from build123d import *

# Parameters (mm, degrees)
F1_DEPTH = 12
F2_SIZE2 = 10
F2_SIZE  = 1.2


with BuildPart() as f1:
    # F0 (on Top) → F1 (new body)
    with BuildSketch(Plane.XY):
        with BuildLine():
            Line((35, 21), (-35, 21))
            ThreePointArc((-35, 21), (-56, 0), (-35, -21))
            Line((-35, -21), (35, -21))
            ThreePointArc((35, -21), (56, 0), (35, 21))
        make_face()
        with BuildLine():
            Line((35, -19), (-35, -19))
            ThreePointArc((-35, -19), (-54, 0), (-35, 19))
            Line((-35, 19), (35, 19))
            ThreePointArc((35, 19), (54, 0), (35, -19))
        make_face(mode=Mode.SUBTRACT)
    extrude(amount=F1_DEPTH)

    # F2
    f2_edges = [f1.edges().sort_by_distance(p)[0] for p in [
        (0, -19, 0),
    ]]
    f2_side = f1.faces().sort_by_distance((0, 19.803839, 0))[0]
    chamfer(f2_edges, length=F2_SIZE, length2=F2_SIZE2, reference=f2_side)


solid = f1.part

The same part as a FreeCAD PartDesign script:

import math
import FreeCAD as App
import Part
import Sketcher

V = App.Vector


def edges_at(feature, points):
    """Names of the edges that pass closest to the given points."""
    edges = feature.Shape.Edges
    near = lambda p: min(range(len(edges)), key=lambda i: edges[i].distToShape(Part.Vertex(*p))[0])
    return sorted({f"Edge{near(p) + 1}" for p in points})

doc = App.newDocument("Part")
params = doc.addObject("Spreadsheet::Sheet", "Params")
for row, (alias, value) in enumerate([
    ("sketch1_radius", "21 mm"),
    ("sketch1_radius2", "19 mm"),
    ("sketch1_width", "70 mm"),
    ("pad1_length", "12 mm"),
    ("chamfer_size", "1.2 mm"),
    ("chamfer_size2", "10 mm"),
], start=1):
    params.set(f"A{row}", alias)
    params.set(f"B{row}", "=" + value)
    params.setAlias(f"B{row}", alias)

body = doc.addObject("PartDesign::Body", "Body")

# Sketch on XY plane
sketch1 = body.newObject("Sketcher::SketchObject", "Sketch")
sketch1.AttachmentSupport = (doc.getObject("XY_Plane"), [""])
sketch1.MapMode = "FlatFace"
sketch1.addGeometry(Part.LineSegment(V(35, 21, 0), V(-35, 21, 0)), False)
sketch1.addGeometry(Part.ArcOfCircle(Part.Circle(V(-35, 0, 0), V(0, 0, 1), 21), math.radians(90), math.radians(270)), False)
sketch1.addGeometry(Part.LineSegment(V(-35, -21, 0), V(35, -21, 0)), False)
sketch1.addGeometry(Part.ArcOfCircle(Part.Circle(V(35, 0, 0), V(0, 0, 1), 21), math.radians(-90), math.radians(90)), False)
sketch1.addGeometry(Part.ArcOfCircle(Part.Circle(V(35, 0, 0), V(0, 0, 1), 19), math.radians(-90), math.radians(90)), False)
sketch1.addGeometry(Part.LineSegment(V(35, -19, 0), V(-35, -19, 0)), False)
sketch1.addGeometry(Part.ArcOfCircle(Part.Circle(V(-35, 0, 0), V(0, 0, 1), 19), math.radians(90), math.radians(270)), False)
sketch1.addGeometry(Part.LineSegment(V(-35, 19, 0), V(35, 19, 0)), False)
sketch1.addConstraint(Sketcher.Constraint("Tangent", 0, 2, 1, 1))
sketch1.addConstraint(Sketcher.Constraint("Tangent", 1, 2, 2, 1))
sketch1.addConstraint(Sketcher.Constraint("Tangent", 2, 2, 3, 1))
sketch1.addConstraint(Sketcher.Constraint("Tangent", 3, 2, 0, 1))
sketch1.addConstraint(Sketcher.Constraint("Tangent", 4, 1, 5, 1))
sketch1.addConstraint(Sketcher.Constraint("Tangent", 5, 2, 6, 2))
sketch1.addConstraint(Sketcher.Constraint("Tangent", 6, 1, 7, 1))
sketch1.addConstraint(Sketcher.Constraint("Tangent", 7, 2, 4, 2))
sketch1.addConstraint(Sketcher.Constraint("Horizontal", 0))
sketch1.addConstraint(Sketcher.Constraint("Horizontal", 2))
sketch1.addConstraint(Sketcher.Constraint("Horizontal", 5))
sketch1.addConstraint(Sketcher.Constraint("Horizontal", 7))
sketch1.addConstraint(Sketcher.Constraint("Coincident", 4, 3, 3, 3))
sketch1.addConstraint(Sketcher.Constraint("Symmetric", 1, 3, 3, 3, -1, 1))
sketch1.addConstraint(Sketcher.Constraint("Vertical", 6, 3, 0, 2))
sketch1.addConstraint(Sketcher.Constraint("Radius", 1, 21.0))
sketch1.addConstraint(Sketcher.Constraint("Radius", 4, 19.0))
sketch1.addConstraint(Sketcher.Constraint("DistanceX", 0, 2, 0, 1, 70.0))
sketch1.setExpression("Constraints[15]", "Params.sketch1_radius")
sketch1.setExpression("Constraints[16]", "Params.sketch1_radius2")
sketch1.setExpression("Constraints[17]", "Params.sketch1_width")
pad1 = body.newObject("PartDesign::Pad", "Pad")
pad1.Profile = sketch1
pad1.setExpression("Length", "Params.pad1_length")
doc.recompute()

chamfer = body.newObject("PartDesign::Chamfer", "Chamfer")
chamfer.Base = (pad1, edges_at(pad1, [(0, -19, 0)]))
chamfer.ChamferType = "Two distances"
chamfer.setExpression("Size", "Params.chamfer_size")
chamfer.setExpression("Size2", "Params.chamfer_size2")
chamfer.FlipDirection = True

doc.recompute()
